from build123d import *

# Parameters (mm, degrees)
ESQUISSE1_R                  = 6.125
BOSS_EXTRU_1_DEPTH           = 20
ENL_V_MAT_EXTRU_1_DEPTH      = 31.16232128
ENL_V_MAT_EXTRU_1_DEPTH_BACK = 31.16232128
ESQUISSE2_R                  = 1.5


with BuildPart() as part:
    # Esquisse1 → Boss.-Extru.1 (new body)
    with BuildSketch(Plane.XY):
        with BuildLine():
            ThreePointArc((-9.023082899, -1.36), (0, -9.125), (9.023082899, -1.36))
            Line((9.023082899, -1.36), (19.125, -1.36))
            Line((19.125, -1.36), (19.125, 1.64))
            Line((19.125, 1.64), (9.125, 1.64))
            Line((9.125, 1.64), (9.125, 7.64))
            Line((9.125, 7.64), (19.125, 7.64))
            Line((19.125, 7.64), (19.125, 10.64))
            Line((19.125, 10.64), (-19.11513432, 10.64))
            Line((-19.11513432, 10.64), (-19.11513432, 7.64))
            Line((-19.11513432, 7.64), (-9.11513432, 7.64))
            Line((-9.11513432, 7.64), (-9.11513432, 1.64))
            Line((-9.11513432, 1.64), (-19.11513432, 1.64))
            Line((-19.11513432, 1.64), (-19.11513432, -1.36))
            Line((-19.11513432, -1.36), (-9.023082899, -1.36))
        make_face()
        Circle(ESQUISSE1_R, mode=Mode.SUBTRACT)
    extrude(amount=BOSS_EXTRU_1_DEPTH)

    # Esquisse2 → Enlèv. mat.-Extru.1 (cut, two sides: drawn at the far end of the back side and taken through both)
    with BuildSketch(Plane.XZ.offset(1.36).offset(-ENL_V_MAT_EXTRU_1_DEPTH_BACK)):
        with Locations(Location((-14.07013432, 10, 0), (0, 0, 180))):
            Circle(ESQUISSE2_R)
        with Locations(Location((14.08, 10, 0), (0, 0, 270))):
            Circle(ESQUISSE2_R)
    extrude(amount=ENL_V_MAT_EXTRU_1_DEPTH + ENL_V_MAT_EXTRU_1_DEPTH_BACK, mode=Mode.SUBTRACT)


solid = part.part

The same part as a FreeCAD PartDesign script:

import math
import FreeCAD as App
import Part
import Sketcher
Q = App.Units.Quantity

doc = App.newDocument("Part")
params = doc.addObject("Spreadsheet::Sheet", "Params")
for row, (alias, value) in enumerate([
    ("sketch1_diameter", "12.25 mm"),
    ("sketch1_width", "10 mm"),
    ("sketch1_height", "3 mm"),
    ("sketch1_height2", "6 mm"),
    ("pad1_length", "20 mm"),
    ("sketch2_diameter", "3 mm"),
], start=1):
    params.set(f"A{row}", alias)
    params.set(f"B{row}", "=" + value)
    params.setAlias(f"B{row}", alias)

body = doc.addObject("PartDesign::Body", "Body")

sketch1 = body.newObject("Sketcher::SketchObject", "Sketch")
sketch1.AttachmentSupport = (doc.getObject("XY_Plane"), [""])
sketch1.MapMode = "FlatFace"
sketch1.addGeometry(Part.ArcOfCircle(Part.Circle(App.Vector(0, 0, 0), App.Vector(0, 0, 1), 9.1), math.radians(-171), math.radians(-9)), False)
sketch1.addGeometry(Part.LineSegment(App.Vector(9, -1.4, 0), App.Vector(19.1, -1.4, 0)), False)
sketch1.addGeometry(Part.LineSegment(App.Vector(19.1, -1.4, 0), App.Vector(19.1, 1.6, 0)), False)
sketch1.addGeometry(Part.LineSegment(App.Vector(19.1, 1.6, 0), App.Vector(9.1, 1.6, 0)), False)
sketch1.addGeometry(Part.LineSegment(App.Vector(9.1, 1.6, 0), App.Vector(9.1, 7.6, 0)), False)
sketch1.addGeometry(Part.LineSegment(App.Vector(9.1, 7.6, 0), App.Vector(19.1, 7.6, 0)), False)
sketch1.addGeometry(Part.LineSegment(App.Vector(19.1, 7.6, 0), App.Vector(19.1, 10.6, 0)), False)
sketch1.addGeometry(Part.LineSegment(App.Vector(19.1, 10.6, 0), App.Vector(-19.1, 10.6, 0)), False)
sketch1.addGeometry(Part.LineSegment(App.Vector(-19.1, 10.6, 0), App.Vector(-19.1, 7.6, 0)), False)
sketch1.addGeometry(Part.LineSegment(App.Vector(-19.1, 7.6, 0), App.Vector(-9.1, 7.6, 0)), False)
sketch1.addGeometry(Part.LineSegment(App.Vector(-9.1, 7.6, 0), App.Vector(-9.1, 1.6, 0)), False)
sketch1.addGeometry(Part.LineSegment(App.Vector(-9.1, 1.6, 0), App.Vector(-19.1, 1.6, 0)), False)
sketch1.addGeometry(Part.LineSegment(App.Vector(-19.1, 1.6, 0), App.Vector(-19.1, -1.4, 0)), False)
sketch1.addGeometry(Part.LineSegment(App.Vector(-19.1, -1.4, 0), App.Vector(-9, -1.4, 0)), False)
sketch1.addGeometry(Part.Circle(App.Vector(0, 0, 0), App.Vector(0, 0, 1), 6.1), False)
sketch1.addConstraint(Sketcher.Constraint("Coincident", 0, 2, 1, 1))
sketch1.addConstraint(Sketcher.Constraint("Coincident", 1, 2, 2, 1))
sketch1.addConstraint(Sketcher.Constraint("Coincident", 2, 2, 3, 1))
sketch1.addConstraint(Sketcher.Constraint("Coincident", 3, 2, 4, 1))
sketch1.addConstraint(Sketcher.Constraint("Coincident", 4, 2, 5, 1))
sketch1.addConstraint(Sketcher.Constraint("Coincident", 5, 2, 6, 1))
sketch1.addConstraint(Sketcher.Constraint("Coincident", 6, 2, 7, 1))
sketch1.addConstraint(Sketcher.Constraint("Coincident", 7, 2, 8, 1))
sketch1.addConstraint(Sketcher.Constraint("Coincident", 8, 2, 9, 1))
sketch1.addConstraint(Sketcher.Constraint("Coincident", 9, 2, 10, 1))
sketch1.addConstraint(Sketcher.Constraint("Coincident", 10, 2, 11, 1))
sketch1.addConstraint(Sketcher.Constraint("Coincident", 11, 2, 12, 1))
sketch1.addConstraint(Sketcher.Constraint("Coincident", 12, 2, 13, 1))
sketch1.addConstraint(Sketcher.Constraint("Coincident", 13, 2, 0, 1))
sketch1.addConstraint(Sketcher.Constraint("Horizontal", 1))
sketch1.addConstraint(Sketcher.Constraint("Vertical", 2))
sketch1.addConstraint(Sketcher.Constraint("Horizontal", 3))
sketch1.addConstraint(Sketcher.Constraint("Vertical", 4))
sketch1.addConstraint(Sketcher.Constraint("Horizontal", 5))
sketch1.addConstraint(Sketcher.Constraint("Vertical", 6))
sketch1.addConstraint(Sketcher.Constraint("Horizontal", 7))
sketch1.addConstraint(Sketcher.Constraint("Vertical", 8))
sketch1.addConstraint(Sketcher.Constraint("Horizontal", 9))
sketch1.addConstraint(Sketcher.Constraint("Vertical", 10))
sketch1.addConstraint(Sketcher.Constraint("Horizontal", 11))
sketch1.addConstraint(Sketcher.Constraint("Vertical", 12))
sketch1.addConstraint(Sketcher.Constraint("Horizontal", 13))
sketch1.addConstraint(Sketcher.Constraint("Coincident", 0, 3, -1, 1))
sketch1.addConstraint(Sketcher.Constraint("Coincident", 14, 3, -1, 1))
sketch1.addConstraint(Sketcher.Constraint("Horizontal", 5, 2, 8, 2))
sketch1.addConstraint(Sketcher.Constraint("Horizontal", 3, 2, 10, 2))
sketch1.addConstraint(Sketcher.Constraint("Horizontal", 1, 2, 12, 2))
sketch1.addConstraint(Sketcher.Constraint("Vertical", 2, 2, 5, 2))
sketch1.addConstraint(Sketcher.Constraint("Vertical", 8, 2, 11, 2))
sketch1.addConstraint(Sketcher.Constraint("Equal", 5, 9))
sketch1.addConstraint(Sketcher.Constraint("Equal", 2, 6))
sketch1.addConstraint(Sketcher.Constraint("Diameter", 14, Q("12.25 mm")))
sketch1.addConstraint(Sketcher.Constraint("DistanceX", 3, 2, 3, 1, Q("10 mm")))
sketch1.addConstraint(Sketcher.Constraint("DistanceY", 2, 1, 2, 2, Q("3 mm")))
sketch1.addConstraint(Sketcher.Constraint("DistanceY", 4, 1, 4, 2, Q("6 mm")))
sketch1.addConstraint(Sketcher.Constraint("Radius", 0, Q("9.125 mm")))
sketch1.addConstraint(Sketcher.Constraint("DistanceY", 0, 2, -1, 1, Q("1.36 mm")))
sketch1.addConstraint(Sketcher.Constraint("DistanceX", -1, 1, 1, 2, Q("19.125 mm")))
sketch1.addConstraint(Sketcher.Constraint("DistanceX", 13, 1, 13, 2, Q("10.092051 mm")))
sketch1.setExpression("Constraints[36]", "Params.sketch1_diameter")
sketch1.setExpression("Constraints[37]", "Params.sketch1_width")
sketch1.setExpression("Constraints[38]", "Params.sketch1_height")
sketch1.setExpression("Constraints[39]", "Params.sketch1_height2")
pad1 = body.newObject("PartDesign::Pad", "Pad")
pad1.Profile = sketch1
pad1.setExpression("Length", "Params.pad1_length")

sketch2 = body.newObject("Sketcher::SketchObject", "Sketch001")
sketch2.AttachmentSupport = (doc.getObject("XZ_Plane"), [""])
sketch2.MapMode = "FlatFace"
sketch2.AttachmentOffset = App.Placement(App.Vector(0, 0, 1.36), App.Rotation())
sketch2.addGeometry(Part.Circle(App.Vector(-14.1, 10, 0), App.Vector(0, 0, 1), 1.5), False)
sketch2.addGeometry(Part.Circle(App.Vector(14.1, 10, 0), App.Vector(0, 0, 1), 1.5), False)
sketch2.addConstraint(Sketcher.Constraint("Equal", 0, 1))
sketch2.addConstraint(Sketcher.Constraint("Horizontal", 0, 3, 1, 3))
sketch2.addConstraint(Sketcher.Constraint("Diameter", 0, Q("3 mm")))
sketch2.addConstraint(Sketcher.Constraint("DistanceY", -1, 1, 0, 3, Q("10 mm")))
sketch2.addConstraint(Sketcher.Constraint("DistanceX", -1, 1, 1, 3, Q("14.08 mm")))
sketch2.addConstraint(Sketcher.Constraint("DistanceX", 0, 3, -1, 1, Q("14.070134 mm")))
sketch2.setExpression("Constraints[2]", "Params.sketch2_diameter")
pocket1 = body.newObject("PartDesign::Pocket", "Pocket")
pocket1.Profile = sketch2
pocket1.Type = "ThroughAll"
pocket1.Midplane = True

doc.recompute()
